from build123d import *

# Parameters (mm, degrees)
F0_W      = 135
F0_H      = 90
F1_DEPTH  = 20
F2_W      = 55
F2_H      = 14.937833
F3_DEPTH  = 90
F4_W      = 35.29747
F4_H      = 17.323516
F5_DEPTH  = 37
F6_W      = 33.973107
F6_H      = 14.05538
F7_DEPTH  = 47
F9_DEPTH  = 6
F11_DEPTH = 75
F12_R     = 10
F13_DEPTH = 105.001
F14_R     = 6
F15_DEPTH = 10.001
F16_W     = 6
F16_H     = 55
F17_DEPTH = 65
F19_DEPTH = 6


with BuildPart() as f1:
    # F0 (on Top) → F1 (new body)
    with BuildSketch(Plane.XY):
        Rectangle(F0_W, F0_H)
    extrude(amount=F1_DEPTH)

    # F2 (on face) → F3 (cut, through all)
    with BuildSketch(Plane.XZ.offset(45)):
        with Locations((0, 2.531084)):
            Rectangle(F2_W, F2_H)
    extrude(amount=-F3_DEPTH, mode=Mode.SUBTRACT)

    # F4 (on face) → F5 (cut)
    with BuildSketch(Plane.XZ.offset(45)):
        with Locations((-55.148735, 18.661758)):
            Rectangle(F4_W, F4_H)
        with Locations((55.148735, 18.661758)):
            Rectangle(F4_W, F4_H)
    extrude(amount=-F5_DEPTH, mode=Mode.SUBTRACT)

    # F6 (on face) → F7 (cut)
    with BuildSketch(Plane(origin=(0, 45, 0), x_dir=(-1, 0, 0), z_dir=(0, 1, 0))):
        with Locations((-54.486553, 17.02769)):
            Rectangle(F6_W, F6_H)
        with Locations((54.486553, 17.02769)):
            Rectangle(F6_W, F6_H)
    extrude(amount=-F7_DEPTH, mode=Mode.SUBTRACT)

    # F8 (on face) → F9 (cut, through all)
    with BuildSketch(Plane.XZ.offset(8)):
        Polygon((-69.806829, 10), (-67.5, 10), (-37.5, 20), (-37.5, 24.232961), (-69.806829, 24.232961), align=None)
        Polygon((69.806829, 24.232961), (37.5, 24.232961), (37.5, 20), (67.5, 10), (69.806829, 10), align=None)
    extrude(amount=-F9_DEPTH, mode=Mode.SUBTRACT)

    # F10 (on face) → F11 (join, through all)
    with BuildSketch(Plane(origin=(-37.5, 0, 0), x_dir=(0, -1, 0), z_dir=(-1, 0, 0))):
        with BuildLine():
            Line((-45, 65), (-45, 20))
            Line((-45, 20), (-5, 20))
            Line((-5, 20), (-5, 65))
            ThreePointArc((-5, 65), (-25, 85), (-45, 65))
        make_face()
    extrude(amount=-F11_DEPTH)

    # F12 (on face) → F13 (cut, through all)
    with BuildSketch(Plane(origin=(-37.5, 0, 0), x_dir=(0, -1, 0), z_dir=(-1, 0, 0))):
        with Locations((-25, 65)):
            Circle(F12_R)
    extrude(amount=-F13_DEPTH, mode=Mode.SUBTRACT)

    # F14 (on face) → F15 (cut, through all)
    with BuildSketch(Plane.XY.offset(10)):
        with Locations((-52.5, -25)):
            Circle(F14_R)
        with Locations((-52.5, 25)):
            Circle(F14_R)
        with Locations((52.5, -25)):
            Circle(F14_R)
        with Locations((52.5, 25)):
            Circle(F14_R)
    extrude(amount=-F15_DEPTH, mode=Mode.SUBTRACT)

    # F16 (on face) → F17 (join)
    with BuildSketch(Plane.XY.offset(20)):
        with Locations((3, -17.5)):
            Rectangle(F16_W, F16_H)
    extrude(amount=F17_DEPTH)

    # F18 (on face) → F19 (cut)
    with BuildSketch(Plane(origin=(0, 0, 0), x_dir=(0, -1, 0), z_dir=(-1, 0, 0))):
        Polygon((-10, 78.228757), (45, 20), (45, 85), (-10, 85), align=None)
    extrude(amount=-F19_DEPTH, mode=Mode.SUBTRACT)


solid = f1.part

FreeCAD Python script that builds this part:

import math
import FreeCAD as App
import Part
import Sketcher


def add_polygon(sketch, points):
    """Adds a closed chain of lines whose ends are joined by coincident constraints."""
    first, n = sketch.GeometryCount, len(points)
    for a, b in zip(points, points[1:] + points[:1]):
        sketch.addGeometry(Part.LineSegment(App.Vector(*a, 0), App.Vector(*b, 0)), False)
    for i in range(n):
        sketch.addConstraint(Sketcher.Constraint("Coincident", first + i, 2, first + (i + 1) % n, 1))

doc = App.newDocument("Part")
body = doc.addObject("PartDesign::Body", "Body")

sketch1 = body.newObject("Sketcher::SketchObject", "Sketch")
sketch1.AttachmentSupport = (doc.getObject("XY_Plane"), [""])
sketch1.MapMode = "FlatFace"
add_polygon(sketch1, [(-68, 45), (-68, -45), (68, -45), (68, 45)])
sketch1.addConstraint([
    Sketcher.Constraint("Vertical", 0),
    Sketcher.Constraint("Horizontal", 1),
    Sketcher.Constraint("Vertical", 2),
    Sketcher.Constraint("Horizontal", 3),
    Sketcher.Constraint("Symmetric", 0, 2, 2, 2, -1, 1),
    Sketcher.Constraint("DistanceX", 1, 1, 1, 2, 135.0),
    Sketcher.Constraint("DistanceY", 0, 2, 0, 1, 90.0),
])
pad1 = body.newObject("PartDesign::Pad", "Pad")
pad1.Profile = sketch1
pad1.Length = 20

sketch2 = body.newObject("Sketcher::SketchObject", "Sketch001")
sketch2.AttachmentSupport = (doc.getObject("XZ_Plane"), [""])
sketch2.MapMode = "FlatFace"
sketch2.AttachmentOffset = App.Placement(App.Vector(0, 0, 45), App.Rotation())
add_polygon(sketch2, [(-28, 10), (-28, -5), (28, -5), (28, 10)])
sketch2.addConstraint([
    Sketcher.Constraint("Vertical", 0),
    Sketcher.Constraint("Horizontal", 1),
    Sketcher.Constraint("Vertical", 2),
    Sketcher.Constraint("Horizontal", 3),
    Sketcher.Constraint("DistanceX", 1, 1, 1, 2, 55.0),
    Sketcher.Constraint("DistanceY", -1, 1, 2, 2, 10.000001),
    Sketcher.Constraint("DistanceX", 0, 2, -1, 1, 27.5),
    Sketcher.Constraint("DistanceY", 0, 2, 0, 1, 14.937833),
])
pocket1 = body.newObject("PartDesign::Pocket", "Pocket")
pocket1.Profile = sketch2
pocket1.Type = "ThroughAll"

sketch3 = body.newObject("Sketcher::SketchObject", "Sketch002")
sketch3.AttachmentSupport = (doc.getObject("XZ_Plane"), [""])
sketch3.MapMode = "FlatFace"
sketch3.AttachmentOffset = App.Placement(App.Vector(0, 0, 45), App.Rotation())
add_polygon(sketch3, [(-73, 27), (-73, 10), (-38, 10), (-38, 27)])
add_polygon(sketch3, [(38, 27), (38, 10), (73, 10), (73, 27)])
sketch3.addConstraint([
    Sketcher.Constraint("Vertical", 0),
    Sketcher.Constraint("Horizontal", 1),
    Sketcher.Constraint("Vertical", 2),
    Sketcher.Constraint("Horizontal", 3),
    Sketcher.Constraint("Vertical", 4),
    Sketcher.Constraint("Horizontal", 5),
    Sketcher.Constraint("Vertical", 6),
    Sketcher.Constraint("Horizontal", 7),
    Sketcher.Constraint("Symmetric", 1, 2, 4, 2, -2),
    Sketcher.Constraint("Symmetric", 3, 2, 6, 2, -2),
    Sketcher.Constraint("DistanceY", -1, 1, 0, 2, 10.0),
    Sketcher.Constraint("DistanceX", 1, 2, 4, 2, 75.0),
    Sketcher.Constraint("DistanceX", 1, 1, 1, 2, 35.29747),
    Sketcher.Constraint("DistanceY", 0, 2, 0, 1, 17.323516),
])
pocket2 = body.newObject("PartDesign::Pocket", "Pocket001")
pocket2.Profile = sketch3
pocket2.Length = 37

sketch4 = body.newObject("Sketcher::SketchObject", "Sketch003")
sketch4.AttachmentSupport = (doc.getObject("XZ_Plane"), [""])
sketch4.MapMode = "FlatFace"
sketch4.AttachmentOffset = App.Placement(App.Vector(0, 0, -45), App.Rotation())
add_polygon(sketch4, [(71, 24), (71, 10), (37, 10), (37, 24)])
add_polygon(sketch4, [(-37, 24), (-37, 10), (-71, 10), (-71, 24)])
sketch4.addConstraint([
    Sketcher.Constraint("Vertical", 0),
    Sketcher.Constraint("Horizontal", 1),
    Sketcher.Constraint("Vertical", 2),
    Sketcher.Constraint("Horizontal", 3),
    Sketcher.Constraint("Vertical", 4),
    Sketcher.Constraint("Horizontal", 5),
    Sketcher.Constraint("Vertical", 6),
    Sketcher.Constraint("Horizontal", 7),
    Sketcher.Constraint("Symmetric", 1, 2, 4, 2, -2),
    Sketcher.Constraint("Symmetric", 3, 2, 6, 2, -2),
    Sketcher.Constraint("DistanceY", -1, 1, 0, 2, 10.0),
    Sketcher.Constraint("DistanceX", 4, 2, 1, 2, 74.999999),
    Sketcher.Constraint("DistanceY", 0, 2, 0, 1, 14.05538),
    Sketcher.Constraint("DistanceX", 1, 2, 1, 1, 33.973107),
])
pocket3 = body.newObject("PartDesign::Pocket", "Pocket002")
pocket3.Profile = sketch4
pocket3.Length = 47
pocket3.Reversed = True

sketch5 = body.newObject("Sketcher::SketchObject", "Sketch004")
sketch5.AttachmentSupport = (doc.getObject("XZ_Plane"), [""])
sketch5.MapMode = "FlatFace"
sketch5.AttachmentOffset = App.Placement(App.Vector(0, 0, 8), App.Rotation())
add_polygon(sketch5, [(-69.8, 10), (-67.5, 10), (-37.5, 20), (-37.5, 24.2), (-69.8, 24.2)])
add_polygon(sketch5, [(69.8, 24.2), (37.5, 24.2), (37.5, 20), (67.5, 10), (69.8, 10)])
sketch5.addConstraint([
    Sketcher.Constraint("Horizontal", 0),
    Sketcher.Constraint("Vertical", 2),
    Sketcher.Constraint("Horizontal", 3),
    Sketcher.Constraint("Vertical", 4),
    Sketcher.Constraint("Horizontal", 5),
    Sketcher.Constraint("Vertical", 6),
    Sketcher.Constraint("Horizontal", 8),
    Sketcher.Constraint("Vertical", 9),
    Sketcher.Constraint("Symmetric", 2, 2, 5, 2, -2),
    Sketcher.Constraint("Symmetric", 0, 2, 7, 2, -2),
    Sketcher.Constraint("Horizontal", 1, 2, 6, 2),
    Sketcher.Constraint("Equal", 3, 5),
    Sketcher.Constraint("DistanceY", -1, 1, 0, 2, 10.0),
    Sketcher.Constraint("DistanceY", -1, 1, 1, 2, 20.0),
    Sketcher.Constraint("DistanceX", 0, 2, 1, 2, 30.0),
    Sketcher.Constraint("DistanceX", 2, 2, 5, 2, 75.0),
    Sketcher.Constraint("DistanceX", 0, 1, 0, 2, 2.306829),
    Sketcher.Constraint("DistanceY", 2, 1, 2, 2, 4.232961),
])
pocket4 = body.newObject("PartDesign::Pocket", "Pocket003")
pocket4.Profile = sketch5
pocket4.Type = "ThroughAll"

sketch6 = body.newObject("Sketcher::SketchObject", "Sketch005")
sketch6.AttachmentSupport = (doc.getObject("YZ_Plane"), [""])
sketch6.MapMode = "FlatFace"
sketch6.AttachmentOffset = App.Placement(App.Vector(0, 0, -37.5), App.Rotation())
sketch6.addGeometry([
    Part.LineSegment(App.Vector(45, 65, 0), App.Vector(45, 20, 0)),
    Part.LineSegment(App.Vector(45, 20, 0), App.Vector(5, 20, 0)),
    Part.LineSegment(App.Vector(5, 20, 0), App.Vector(5, 65, 0)),
    Part.ArcOfCircle(Part.Circle(App.Vector(25, 65, 0), App.Vector(0, 0, 1), 20), math.radians(0), math.radians(180)),
], False)
sketch6.addConstraint([
    Sketcher.Constraint("Coincident", 0, 2, 1, 1),
    Sketcher.Constraint("Coincident", 1, 2, 2, 1),
    Sketcher.Constraint("Tangent", 2, 2, 3, 2),
    Sketcher.Constraint("Tangent", 3, 1, 0, 1),
    Sketcher.Constraint("Vertical", 0),
    Sketcher.Constraint("Horizontal", 1),
    Sketcher.Constraint("Vertical", 2),
    Sketcher.Constraint("Radius", 3, 20.0),
    Sketcher.Constraint("DistanceY", 0, 2, 0, 1, 45.0),
    Sketcher.Constraint("DistanceX", -1, 1, 3, 3, 25.0),
    Sketcher.Constraint("DistanceY", -1, 1, 3, 3, 65.0),
])
pad2 = body.newObject("PartDesign::Pad", "Pad001")
pad2.Profile = sketch6
pad2.Length = 75

sketch7 = body.newObject("Sketcher::SketchObject", "Sketch006")
sketch7.AttachmentSupport = (doc.getObject("YZ_Plane"), [""])
sketch7.MapMode = "FlatFace"
sketch7.AttachmentOffset = App.Placement(App.Vector(0, 0, -37.5), App.Rotation())
sketch7.addGeometry(Part.Circle(App.Vector(25, 65, 0), App.Vector(0, 0, 1), 10), False)
sketch7.addConstraint([
    Sketcher.Constraint("Diameter", 0, 20.0),
    Sketcher.Constraint("DistanceX", -1, 1, 0, 3, 25.0),
    Sketcher.Constraint("DistanceY", -1, 1, 0, 3, 65.0),
])
pocket5 = body.newObject("PartDesign::Pocket", "Pocket004")
pocket5.Profile = sketch7
pocket5.Type = "ThroughAll"
pocket5.Reversed = True

sketch8 = body.newObject("Sketcher::SketchObject", "Sketch007")
sketch8.AttachmentSupport = (doc.getObject("XY_Plane"), [""])
sketch8.MapMode = "FlatFace"
sketch8.AttachmentOffset = App.Placement(App.Vector(0, 0, 10), App.Rotation())
sketch8.addGeometry([
    Part.Circle(App.Vector(-52, -25, 0), App.Vector(0, 0, 1), 6),
    Part.Circle(App.Vector(-52, 25, 0), App.Vector(0, 0, 1), 6),
    Part.Circle(App.Vector(52, -25, 0), App.Vector(0, 0, 1), 6),
    Part.Circle(App.Vector(52, 25, 0), App.Vector(0, 0, 1), 6),
], False)
sketch8.addConstraint([
    Sketcher.Constraint("Equal", 0, 1),
    Sketcher.Constraint("Equal", 1, 2),
    Sketcher.Constraint("Equal", 2, 3),
    Sketcher.Constraint("Symmetric", 1, 3, 2, 3, -1, 1),
    Sketcher.Constraint("Symmetric", 0, 3, 3, 3, -1, 1),
    Sketcher.Constraint("Symmetric", 0, 3, 2, 3, -2),
    Sketcher.Constraint("Diameter", 0, 12.0),
    Sketcher.Constraint("DistanceY", 0, 3, -1, 1, 25.0),
    Sketcher.Constraint("DistanceX", 0, 3, 2, 3, 105.0),
])
pocket6 = body.newObject("PartDesign::Pocket", "Pocket005")
pocket6.Profile = sketch8
pocket6.Type = "ThroughAll"

sketch9 = body.newObject("Sketcher::SketchObject", "Sketch008")
sketch9.AttachmentSupport = (doc.getObject("XY_Plane"), [""])
sketch9.MapMode = "FlatFace"
sketch9.AttachmentOffset = App.Placement(App.Vector(0, 0, 20), App.Rotation())
add_polygon(sketch9, [(0, 10), (0, -45), (6, -45), (6, 10)])
sketch9.addConstraint([
    Sketcher.Constraint("Vertical", 0),
    Sketcher.Constraint("Horizontal", 1),
    Sketcher.Constraint("Vertical", 2),
    Sketcher.Constraint("Horizontal", 3),
    Sketcher.Constraint("PointOnObject", 0, 2, -2),
    Sketcher.Constraint("DistanceX", 1, 1, 1, 2, 6.0),
    Sketcher.Constraint("DistanceY", 0, 2, 0, 1, 55.0),
    Sketcher.Constraint("DistanceY", 0, 2, -1, 1, 45.0),
])
pad3 = body.newObject("PartDesign::Pad", "Pad002")
pad3.Profile = sketch9
pad3.Length = 65

sketch10 = body.newObject("Sketcher::SketchObject", "Sketch009")
sketch10.AttachmentSupport = (doc.getObject("YZ_Plane"), [""])
sketch10.MapMode = "FlatFace"
add_polygon(sketch10, [(10, 78), (-45, 20), (-45, 85), (10, 85)])
sketch10.addConstraint([
    Sketcher.Constraint("Vertical", 1),
    Sketcher.Constraint("Horizontal", 2),
    Sketcher.Constraint("Vertical", 3),
    Sketcher.Constraint("DistanceX", 2, 1, 2, 2, 55.0),
    Sketcher.Constraint("DistanceY", 1, 1, 1, 2, 65.0),
    Sketcher.Constraint("DistanceX", 0, 2, -1, 1, 45.0),
    Sketcher.Constraint("DistanceY", -1, 1, 0, 2, 20.0),
    Sketcher.Constraint("DistanceY", 3, 2, 3, 1, 6.771243),
])
pocket7 = body.newObject("PartDesign::Pocket", "Pocket006")
pocket7.Profile = sketch10
pocket7.Length = 6
pocket7.Reversed = True

doc.recompute()
